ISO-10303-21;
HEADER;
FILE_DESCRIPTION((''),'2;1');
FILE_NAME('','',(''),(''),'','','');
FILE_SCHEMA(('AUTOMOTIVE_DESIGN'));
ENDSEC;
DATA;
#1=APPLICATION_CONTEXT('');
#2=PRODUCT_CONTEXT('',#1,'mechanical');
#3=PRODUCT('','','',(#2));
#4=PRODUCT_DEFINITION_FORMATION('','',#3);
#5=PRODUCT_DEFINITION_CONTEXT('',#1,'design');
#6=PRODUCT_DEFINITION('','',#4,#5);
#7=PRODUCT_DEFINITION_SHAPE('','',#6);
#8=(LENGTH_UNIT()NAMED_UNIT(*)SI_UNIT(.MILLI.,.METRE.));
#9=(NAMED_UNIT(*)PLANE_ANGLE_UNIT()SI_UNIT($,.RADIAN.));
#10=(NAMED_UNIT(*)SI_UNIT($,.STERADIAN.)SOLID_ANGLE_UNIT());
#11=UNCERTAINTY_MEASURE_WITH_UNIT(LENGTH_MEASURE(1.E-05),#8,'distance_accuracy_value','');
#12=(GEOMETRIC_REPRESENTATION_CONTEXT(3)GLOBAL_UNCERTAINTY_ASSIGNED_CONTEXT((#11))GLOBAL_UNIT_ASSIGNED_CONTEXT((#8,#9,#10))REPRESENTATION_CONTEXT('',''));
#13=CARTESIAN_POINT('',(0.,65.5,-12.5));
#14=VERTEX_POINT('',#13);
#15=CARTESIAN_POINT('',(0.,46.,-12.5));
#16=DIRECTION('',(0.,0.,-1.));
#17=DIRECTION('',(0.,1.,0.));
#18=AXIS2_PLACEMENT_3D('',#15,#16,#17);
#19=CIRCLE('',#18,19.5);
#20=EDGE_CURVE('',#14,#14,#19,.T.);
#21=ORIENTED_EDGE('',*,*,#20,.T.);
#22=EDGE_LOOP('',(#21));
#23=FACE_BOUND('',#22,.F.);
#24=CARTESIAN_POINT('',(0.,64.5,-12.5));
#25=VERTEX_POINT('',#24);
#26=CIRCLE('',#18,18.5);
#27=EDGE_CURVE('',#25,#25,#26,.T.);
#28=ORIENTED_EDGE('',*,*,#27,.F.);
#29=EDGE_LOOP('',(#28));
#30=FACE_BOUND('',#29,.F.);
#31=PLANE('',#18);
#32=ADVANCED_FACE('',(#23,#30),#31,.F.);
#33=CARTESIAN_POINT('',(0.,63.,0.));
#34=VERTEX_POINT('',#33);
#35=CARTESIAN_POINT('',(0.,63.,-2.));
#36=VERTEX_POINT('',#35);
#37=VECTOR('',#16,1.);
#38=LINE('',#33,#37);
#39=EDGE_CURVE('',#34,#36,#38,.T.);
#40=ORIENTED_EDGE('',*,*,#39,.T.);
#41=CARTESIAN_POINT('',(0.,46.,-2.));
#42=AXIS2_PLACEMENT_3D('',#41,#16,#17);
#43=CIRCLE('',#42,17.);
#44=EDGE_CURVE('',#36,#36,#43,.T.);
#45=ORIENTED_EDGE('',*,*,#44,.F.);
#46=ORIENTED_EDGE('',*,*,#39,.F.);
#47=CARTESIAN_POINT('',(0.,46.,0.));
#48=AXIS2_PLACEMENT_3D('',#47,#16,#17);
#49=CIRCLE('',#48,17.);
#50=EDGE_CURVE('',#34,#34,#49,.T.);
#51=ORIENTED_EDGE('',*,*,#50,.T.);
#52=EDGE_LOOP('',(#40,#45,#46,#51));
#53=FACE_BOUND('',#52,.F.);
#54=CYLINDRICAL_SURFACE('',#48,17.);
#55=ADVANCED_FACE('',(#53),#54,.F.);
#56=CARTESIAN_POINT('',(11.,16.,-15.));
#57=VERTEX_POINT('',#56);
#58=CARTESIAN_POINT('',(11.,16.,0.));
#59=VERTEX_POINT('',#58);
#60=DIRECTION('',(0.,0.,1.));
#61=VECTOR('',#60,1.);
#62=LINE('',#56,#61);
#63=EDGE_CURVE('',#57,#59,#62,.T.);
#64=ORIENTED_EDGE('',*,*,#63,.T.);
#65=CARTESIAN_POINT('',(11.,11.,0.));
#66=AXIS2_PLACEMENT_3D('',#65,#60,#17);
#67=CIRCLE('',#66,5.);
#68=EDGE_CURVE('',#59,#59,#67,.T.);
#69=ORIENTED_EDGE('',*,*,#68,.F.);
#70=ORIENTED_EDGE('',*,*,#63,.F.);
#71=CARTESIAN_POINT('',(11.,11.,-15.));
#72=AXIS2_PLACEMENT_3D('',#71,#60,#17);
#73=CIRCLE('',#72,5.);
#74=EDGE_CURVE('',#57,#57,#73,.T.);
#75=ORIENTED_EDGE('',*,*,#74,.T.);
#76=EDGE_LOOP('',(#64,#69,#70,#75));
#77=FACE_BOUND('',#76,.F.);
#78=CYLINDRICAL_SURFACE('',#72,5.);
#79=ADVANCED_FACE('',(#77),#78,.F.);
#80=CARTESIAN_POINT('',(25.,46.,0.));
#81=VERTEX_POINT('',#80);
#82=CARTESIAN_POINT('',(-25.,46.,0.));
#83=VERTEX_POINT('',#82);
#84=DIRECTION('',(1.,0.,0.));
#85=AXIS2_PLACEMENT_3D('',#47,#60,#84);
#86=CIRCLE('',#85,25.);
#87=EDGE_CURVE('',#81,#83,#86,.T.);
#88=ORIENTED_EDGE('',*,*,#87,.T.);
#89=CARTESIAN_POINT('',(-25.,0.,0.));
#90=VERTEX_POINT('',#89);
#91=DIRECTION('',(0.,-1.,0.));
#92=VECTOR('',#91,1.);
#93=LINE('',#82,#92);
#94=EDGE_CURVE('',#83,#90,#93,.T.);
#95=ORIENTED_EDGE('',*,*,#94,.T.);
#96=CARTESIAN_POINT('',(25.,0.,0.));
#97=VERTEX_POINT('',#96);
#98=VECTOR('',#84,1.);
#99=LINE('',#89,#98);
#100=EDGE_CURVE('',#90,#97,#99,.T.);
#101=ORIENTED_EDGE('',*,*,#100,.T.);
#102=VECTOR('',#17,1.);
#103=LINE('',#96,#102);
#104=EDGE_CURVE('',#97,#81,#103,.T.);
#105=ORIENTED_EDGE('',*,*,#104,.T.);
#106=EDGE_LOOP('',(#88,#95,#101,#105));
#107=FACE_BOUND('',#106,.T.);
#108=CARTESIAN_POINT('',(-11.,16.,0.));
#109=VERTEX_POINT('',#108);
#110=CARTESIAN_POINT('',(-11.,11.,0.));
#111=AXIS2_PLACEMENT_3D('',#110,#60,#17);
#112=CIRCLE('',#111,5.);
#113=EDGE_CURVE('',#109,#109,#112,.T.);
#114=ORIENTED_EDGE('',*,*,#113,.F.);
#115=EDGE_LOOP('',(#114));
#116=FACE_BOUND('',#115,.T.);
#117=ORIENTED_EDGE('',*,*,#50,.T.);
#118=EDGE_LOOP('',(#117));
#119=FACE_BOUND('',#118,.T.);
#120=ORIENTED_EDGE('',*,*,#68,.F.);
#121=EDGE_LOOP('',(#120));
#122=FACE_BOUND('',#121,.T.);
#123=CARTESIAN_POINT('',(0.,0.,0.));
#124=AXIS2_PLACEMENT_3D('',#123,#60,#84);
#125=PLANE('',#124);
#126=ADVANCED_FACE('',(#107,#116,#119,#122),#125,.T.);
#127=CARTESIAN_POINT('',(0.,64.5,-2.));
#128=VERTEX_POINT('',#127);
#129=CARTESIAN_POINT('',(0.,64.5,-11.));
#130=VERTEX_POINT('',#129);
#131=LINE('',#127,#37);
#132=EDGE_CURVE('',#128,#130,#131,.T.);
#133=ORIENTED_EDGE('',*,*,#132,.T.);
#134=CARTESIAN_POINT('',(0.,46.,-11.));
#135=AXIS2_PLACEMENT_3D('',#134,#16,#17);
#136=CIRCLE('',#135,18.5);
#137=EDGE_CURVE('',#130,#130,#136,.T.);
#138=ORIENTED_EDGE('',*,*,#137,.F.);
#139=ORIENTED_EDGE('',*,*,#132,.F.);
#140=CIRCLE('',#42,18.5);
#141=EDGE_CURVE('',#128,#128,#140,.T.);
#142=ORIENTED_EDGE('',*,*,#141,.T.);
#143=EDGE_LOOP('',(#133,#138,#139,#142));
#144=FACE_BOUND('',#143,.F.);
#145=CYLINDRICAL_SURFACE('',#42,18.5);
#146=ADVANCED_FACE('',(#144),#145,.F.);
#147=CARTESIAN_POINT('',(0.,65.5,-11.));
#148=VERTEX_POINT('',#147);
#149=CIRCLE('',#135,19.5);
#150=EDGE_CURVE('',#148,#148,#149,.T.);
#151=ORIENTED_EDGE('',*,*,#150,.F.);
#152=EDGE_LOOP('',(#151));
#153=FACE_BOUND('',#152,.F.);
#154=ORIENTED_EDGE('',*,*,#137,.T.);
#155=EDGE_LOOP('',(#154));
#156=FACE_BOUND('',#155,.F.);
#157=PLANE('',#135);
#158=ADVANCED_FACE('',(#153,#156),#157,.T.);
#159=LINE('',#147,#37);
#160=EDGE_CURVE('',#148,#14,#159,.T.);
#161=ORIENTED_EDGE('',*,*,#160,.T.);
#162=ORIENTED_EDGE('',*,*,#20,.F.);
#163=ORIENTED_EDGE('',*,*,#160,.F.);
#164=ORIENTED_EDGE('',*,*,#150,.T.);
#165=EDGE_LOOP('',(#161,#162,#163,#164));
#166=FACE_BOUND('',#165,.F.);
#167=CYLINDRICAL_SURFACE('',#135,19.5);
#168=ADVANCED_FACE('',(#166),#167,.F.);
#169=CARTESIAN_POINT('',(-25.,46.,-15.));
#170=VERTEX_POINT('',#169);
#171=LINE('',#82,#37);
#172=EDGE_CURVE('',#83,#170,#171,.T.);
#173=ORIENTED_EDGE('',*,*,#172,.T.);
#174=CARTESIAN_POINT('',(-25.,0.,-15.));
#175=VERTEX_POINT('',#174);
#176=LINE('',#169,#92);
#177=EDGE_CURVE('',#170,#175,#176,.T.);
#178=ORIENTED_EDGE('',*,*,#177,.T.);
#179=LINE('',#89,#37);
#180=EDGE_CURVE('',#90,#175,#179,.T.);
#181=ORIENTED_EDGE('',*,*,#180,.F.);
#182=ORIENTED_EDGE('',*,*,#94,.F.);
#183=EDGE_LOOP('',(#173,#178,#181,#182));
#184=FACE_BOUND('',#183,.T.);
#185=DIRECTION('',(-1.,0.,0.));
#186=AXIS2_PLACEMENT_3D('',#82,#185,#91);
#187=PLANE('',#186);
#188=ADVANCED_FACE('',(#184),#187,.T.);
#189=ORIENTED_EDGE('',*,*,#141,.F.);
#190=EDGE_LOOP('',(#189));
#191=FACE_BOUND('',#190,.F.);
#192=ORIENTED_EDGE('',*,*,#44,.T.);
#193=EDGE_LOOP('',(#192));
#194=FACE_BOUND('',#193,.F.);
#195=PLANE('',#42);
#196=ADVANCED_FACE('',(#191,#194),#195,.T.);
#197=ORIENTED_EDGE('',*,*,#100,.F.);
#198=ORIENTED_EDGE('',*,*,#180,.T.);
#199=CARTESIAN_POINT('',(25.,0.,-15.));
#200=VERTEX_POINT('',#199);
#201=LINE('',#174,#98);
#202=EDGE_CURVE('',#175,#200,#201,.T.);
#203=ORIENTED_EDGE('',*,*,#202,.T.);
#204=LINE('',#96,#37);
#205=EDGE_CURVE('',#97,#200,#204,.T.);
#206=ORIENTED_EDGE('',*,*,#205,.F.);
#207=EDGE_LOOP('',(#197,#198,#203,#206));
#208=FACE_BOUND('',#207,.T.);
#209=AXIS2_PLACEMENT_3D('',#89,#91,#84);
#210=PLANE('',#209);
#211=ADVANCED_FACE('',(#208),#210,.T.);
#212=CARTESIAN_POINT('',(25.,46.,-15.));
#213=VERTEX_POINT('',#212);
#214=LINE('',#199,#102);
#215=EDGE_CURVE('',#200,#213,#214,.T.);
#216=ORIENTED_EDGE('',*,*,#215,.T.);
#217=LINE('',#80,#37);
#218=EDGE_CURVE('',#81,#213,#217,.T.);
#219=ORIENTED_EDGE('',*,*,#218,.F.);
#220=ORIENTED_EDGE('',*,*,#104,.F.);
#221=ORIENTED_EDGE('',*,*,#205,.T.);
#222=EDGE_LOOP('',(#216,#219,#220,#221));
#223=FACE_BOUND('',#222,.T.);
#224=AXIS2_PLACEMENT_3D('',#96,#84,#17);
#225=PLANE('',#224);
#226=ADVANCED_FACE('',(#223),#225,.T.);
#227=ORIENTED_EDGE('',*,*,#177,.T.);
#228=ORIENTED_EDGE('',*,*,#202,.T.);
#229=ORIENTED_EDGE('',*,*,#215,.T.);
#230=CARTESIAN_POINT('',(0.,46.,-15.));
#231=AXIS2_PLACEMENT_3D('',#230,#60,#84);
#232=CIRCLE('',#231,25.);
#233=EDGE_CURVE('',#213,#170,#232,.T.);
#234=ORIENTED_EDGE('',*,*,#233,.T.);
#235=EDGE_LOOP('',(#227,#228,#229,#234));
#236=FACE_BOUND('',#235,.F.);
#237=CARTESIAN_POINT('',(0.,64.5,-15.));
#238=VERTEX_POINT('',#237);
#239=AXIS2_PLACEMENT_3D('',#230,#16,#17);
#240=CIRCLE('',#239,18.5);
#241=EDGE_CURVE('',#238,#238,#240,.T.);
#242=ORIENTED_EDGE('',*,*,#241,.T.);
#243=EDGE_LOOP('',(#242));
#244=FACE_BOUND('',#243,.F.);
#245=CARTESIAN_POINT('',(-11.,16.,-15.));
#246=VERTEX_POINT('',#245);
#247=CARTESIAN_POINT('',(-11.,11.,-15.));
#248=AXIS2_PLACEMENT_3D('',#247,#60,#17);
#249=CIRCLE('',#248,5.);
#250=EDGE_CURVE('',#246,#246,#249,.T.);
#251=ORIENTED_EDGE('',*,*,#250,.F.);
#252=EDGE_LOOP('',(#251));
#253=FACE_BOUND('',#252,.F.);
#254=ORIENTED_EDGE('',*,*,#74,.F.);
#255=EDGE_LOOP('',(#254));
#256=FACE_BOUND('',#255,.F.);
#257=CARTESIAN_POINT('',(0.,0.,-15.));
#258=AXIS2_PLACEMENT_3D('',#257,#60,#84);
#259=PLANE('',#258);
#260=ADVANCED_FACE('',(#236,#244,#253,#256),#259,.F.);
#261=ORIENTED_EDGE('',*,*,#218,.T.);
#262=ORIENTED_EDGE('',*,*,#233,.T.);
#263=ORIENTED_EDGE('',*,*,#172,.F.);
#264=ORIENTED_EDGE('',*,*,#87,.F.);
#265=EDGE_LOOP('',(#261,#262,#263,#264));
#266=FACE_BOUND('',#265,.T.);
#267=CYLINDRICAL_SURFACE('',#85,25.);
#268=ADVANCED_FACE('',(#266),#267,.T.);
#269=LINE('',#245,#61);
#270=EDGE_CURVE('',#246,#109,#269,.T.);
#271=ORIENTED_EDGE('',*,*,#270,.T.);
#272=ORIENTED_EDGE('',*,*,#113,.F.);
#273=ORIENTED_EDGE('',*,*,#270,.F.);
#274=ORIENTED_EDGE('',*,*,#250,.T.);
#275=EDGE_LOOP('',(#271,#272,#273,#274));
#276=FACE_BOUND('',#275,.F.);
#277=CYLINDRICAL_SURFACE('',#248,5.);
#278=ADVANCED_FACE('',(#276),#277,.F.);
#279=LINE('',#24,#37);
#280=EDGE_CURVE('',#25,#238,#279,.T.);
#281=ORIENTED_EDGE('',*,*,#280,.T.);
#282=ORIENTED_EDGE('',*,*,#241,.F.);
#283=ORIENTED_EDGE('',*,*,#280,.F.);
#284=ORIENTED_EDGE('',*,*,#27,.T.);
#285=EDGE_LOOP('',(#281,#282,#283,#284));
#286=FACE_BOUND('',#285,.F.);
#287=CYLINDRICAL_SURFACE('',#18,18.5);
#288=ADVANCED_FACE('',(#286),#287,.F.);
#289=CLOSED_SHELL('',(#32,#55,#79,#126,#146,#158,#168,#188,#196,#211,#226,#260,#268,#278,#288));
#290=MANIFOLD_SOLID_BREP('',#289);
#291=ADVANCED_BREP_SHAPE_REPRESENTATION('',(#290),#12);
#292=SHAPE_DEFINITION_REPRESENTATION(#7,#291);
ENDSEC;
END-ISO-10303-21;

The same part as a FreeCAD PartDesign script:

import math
import FreeCAD as App
import Part
import Sketcher
Q = App.Units.Quantity

doc = App.newDocument("Part")
params = doc.addObject("Spreadsheet::Sheet", "Params")
for row, (alias, value) in enumerate([
    ("sketch1_radius", "25 mm"),
    ("sketch1_height", "46 mm"),
    ("pad1_length", "15 mm"),
    ("sketch2_width", "1 mm"),
    ("sketch2_height", "13 mm"),
    ("sketch2_height2", "9 mm"),
    ("sketch2_width2", "18.5 mm"),
    ("sketch2_height3", "2.5 mm"),
    ("groove_angle", "360 deg"),
    ("sketch3_width", "17 mm"),
    ("sketch3_height", "15 mm"),
    ("groove2_angle", "360 deg"),
    ("sketch4_diameter", "10 mm"),
    ("hole_diameter", "10 mm"),
    ("hole_depth", "15 mm"),
    ("linearpattern_pitch", "22 mm"),
], start=1):
    params.set(f"A{row}", alias)
    params.set(f"B{row}", "=" + value)
    params.setAlias(f"B{row}", alias)

body = doc.addObject("PartDesign::Body", "Body")

# Sketch on XY plane
sketch1 = doc.addObject("Sketcher::SketchObject", "Sketch")
body.addObject(sketch1)
sketch1.AttachmentSupport = (doc.XY_Plane, [""])
sketch1.MapMode = "FlatFace"
sketch1.addGeometry([
    Part.ArcOfCircle(Part.Circle(App.Vector(0, 46, 0), App.Vector(0, 0, 1), 25), math.radians(0), math.radians(180)),
    Part.LineSegment(App.Vector(-25, 46, 0), App.Vector(-25, 0, 0)),
    Part.LineSegment(App.Vector(-25, 0, 0), App.Vector(25, 0, 0)),
    Part.LineSegment(App.Vector(25, 0, 0), App.Vector(25, 46, 0)),
], False)
sketch1.addConstraint([
    Sketcher.Constraint("Tangent", 0, 2, 1, 1),
    Sketcher.Constraint("Coincident", 1, 2, 2, 1),
    Sketcher.Constraint("Coincident", 2, 2, 3, 1),
    Sketcher.Constraint("Tangent", 3, 2, 0, 1),
    Sketcher.Constraint("Vertical", 1),
    Sketcher.Constraint("Horizontal", 2),
    Sketcher.Constraint("Vertical", 3),
    Sketcher.Constraint("Symmetric", 1, 2, 2, 2, -1, 1),
    Sketcher.Constraint("Radius", 0, Q("25 mm")),
    Sketcher.Constraint("DistanceY", 1, 2, 1, 1, Q("46 mm")),
])
sketch1.setExpression("Constraints[8]", "Params.sketch1_radius")
sketch1.setExpression("Constraints[9]", "Params.sketch1_height")
pad1 = doc.addObject("PartDesign::Pad", "Pad")
body.addObject(pad1)
pad1.Profile = sketch1
pad1.setExpression("Length", "Params.pad1_length")
pad1.Reversed = True

# Sketch on YZ plane
sketch2 = doc.addObject("Sketcher::SketchObject", "Sketch001")
body.addObject(sketch2)
sketch2.AttachmentSupport = (doc.YZ_Plane, [""])
sketch2.MapMode = "FlatFace"
sketch2.addGeometry([
    Part.LineSegment(App.Vector(46, -2, 0), App.Vector(46, -15, 0)),  # 0
    Part.LineSegment(App.Vector(46, -15, 0), App.Vector(64.5, -15, 0)),  # 1
    Part.LineSegment(App.Vector(64.5, -15, 0), App.Vector(64.5, -12.5, 0)),  # 2
    Part.LineSegment(App.Vector(64.5, -12.5, 0), App.Vector(65.5, -12.5, 0)),  # 3
    Part.LineSegment(App.Vector(65.5, -12.5, 0), App.Vector(65.5, -11, 0)),  # 4
    Part.LineSegment(App.Vector(65.5, -11, 0), App.Vector(64.5, -11, 0)),  # 5
    Part.LineSegment(App.Vector(64.5, -11, 0), App.Vector(64.5, -2, 0)),  # 6
    Part.LineSegment(App.Vector(64.5, -2, 0), App.Vector(46, -2, 0)),  # 7
], False)
sketch2.addGeometry(Part.LineSegment(App.Vector(46, -2, 0), App.Vector(46, -15, 0)), True)  # axis
sketch2.addConstraint([
    Sketcher.Constraint("Coincident", 0, 2, 1, 1),
    Sketcher.Constraint("Coincident", 1, 2, 2, 1),
    Sketcher.Constraint("Coincident", 2, 2, 3, 1),
    Sketcher.Constraint("Coincident", 3, 2, 4, 1),
    Sketcher.Constraint("Coincident", 4, 2, 5, 1),
    Sketcher.Constraint("Coincident", 5, 2, 6, 1),
    Sketcher.Constraint("Coincident", 6, 2, 7, 1),
    Sketcher.Constraint("Coincident", 7, 2, 0, 1),
    Sketcher.Constraint("Vertical", 0),
    Sketcher.Constraint("Horizontal", 1),
    Sketcher.Constraint("Vertical", 2),
    Sketcher.Constraint("Horizontal", 3),
    Sketcher.Constraint("Vertical", 4),
    Sketcher.Constraint("Horizontal", 5),
    Sketcher.Constraint("Vertical", 6),
    Sketcher.Constraint("Horizontal", 7),
    Sketcher.Constraint("Vertical", 8),
    Sketcher.Constraint("Coincident", 8, 1, 7, 2),
    Sketcher.Constraint("Horizontal", 1, 2, 8, 2),
    Sketcher.Constraint("Vertical", 2, 2, 5, 2),
    Sketcher.Constraint("DistanceX", 3, 1, 3, 2, Q("1 mm")),
    Sketcher.Constraint("DistanceY", 0, 2, 0, 1, Q("13 mm")),
    Sketcher.Constraint("DistanceY", 6, 1, 6, 2, Q("9 mm")),
    Sketcher.Constraint("DistanceX", 1, 1, 1, 2, Q("18.5 mm")),
    Sketcher.Constraint("DistanceY", 2, 1, 2, 2, Q("2.5 mm")),
    Sketcher.Constraint("DistanceX", -1, 1, 0, 2, Q("46 mm")),
    Sketcher.Constraint("DistanceY", 0, 2, -1, 1, Q("15 mm")),
])
sketch2.setExpression("Constraints[20]", "Params.sketch2_width")
sketch2.setExpression("Constraints[21]", "Params.sketch2_height")
sketch2.setExpression("Constraints[22]", "Params.sketch2_height2")
sketch2.setExpression("Constraints[23]", "Params.sketch2_width2")
sketch2.setExpression("Constraints[24]", "Params.sketch2_height3")
groove = doc.addObject("PartDesign::Groove", "Groove")
body.addObject(groove)
groove.Profile = sketch2
groove.ReferenceAxis = (sketch2, ["Axis0"])
groove.setExpression("Angle", "Params.groove_angle")

# Sketch on YZ plane
sketch3 = doc.addObject("Sketcher::SketchObject", "Sketch002")
body.addObject(sketch3)
sketch3.AttachmentSupport = (doc.YZ_Plane, [""])
sketch3.MapMode = "FlatFace"
sketch3.addGeometry([
    Part.LineSegment(App.Vector(46, 0, 0), App.Vector(46, -15, 0)),
    Part.LineSegment(App.Vector(46, -15, 0), App.Vector(63, -15, 0)),
    Part.LineSegment(App.Vector(63, -15, 0), App.Vector(63, 0, 0)),
    Part.LineSegment(App.Vector(63, 0, 0), App.Vector(46, 0, 0)),
], False)
sketch3.addGeometry(Part.LineSegment(App.Vector(46, 0, 0), App.Vector(46, -15, 0)), True)  # axis
sketch3.addConstraint([
    Sketcher.Constraint("Coincident", 0, 2, 1, 1),
    Sketcher.Constraint("Coincident", 1, 2, 2, 1),
    Sketcher.Constraint("Coincident", 2, 2, 3, 1),
    Sketcher.Constraint("Coincident", 3, 2, 0, 1),
    Sketcher.Constraint("Vertical", 0),
    Sketcher.Constraint("Horizontal", 1),
    Sketcher.Constraint("Vertical", 2),
    Sketcher.Constraint("Horizontal", 3),
    Sketcher.Constraint("Vertical", 4),
    Sketcher.Constraint("Coincident", 4, 1, 3, 2),
    Sketcher.Constraint("PointOnObject", 2, 2, -1),
    Sketcher.Constraint("Horizontal", 1, 2, 4, 2),
    Sketcher.Constraint("DistanceX", 1, 1, 1, 2, Q("17 mm")),
    Sketcher.Constraint("DistanceY", 0, 2, 0, 1, Q("15 mm")),
    Sketcher.Constraint("DistanceX", -1, 1, 0, 2, Q("46 mm")),
])
sketch3.setExpression("Constraints[12]", "Params.sketch3_width")
sketch3.setExpression("Constraints[13]", "Params.sketch3_height")
groove2 = doc.addObject("PartDesign::Groove", "Groove001")
body.addObject(groove2)
groove2.Profile = sketch3
groove2.ReferenceAxis = (sketch3, ["Axis0"])
groove2.setExpression("Angle", "Params.groove2_angle")

# Sketch on XY plane
sketch4 = doc.addObject("Sketcher::SketchObject", "Sketch003")
body.addObject(sketch4)
sketch4.AttachmentSupport = (doc.XY_Plane, [""])
sketch4.MapMode = "FlatFace"
sketch4.AttachmentOffset = App.Placement(App.Vector(0, 0, -15), App.Rotation())
sketch4.addGeometry(Part.Circle(App.Vector(-11, 11, 0), App.Vector(0, 0, 1), 5), False)
sketch4.addConstraint([
    Sketcher.Constraint("Diameter", 0, Q("10 mm")),
    Sketcher.Constraint("DistanceX", 0, 3, -1, 1, Q("11 mm")),
    Sketcher.Constraint("DistanceY", -1, 1, 0, 3, Q("11 mm")),
])
sketch4.setExpression("Constraints[0]", "Params.sketch4_diameter")
doc.recompute()
hole = doc.addObject("PartDesign::Hole", "Hole")
body.addObject(hole)
hole.Profile = sketch4
hole.ThreadType = "None"
hole.setExpression("Diameter", "Params.hole_diameter")
hole.DepthType = "Dimension"
hole.setExpression("Depth", "Params.hole_depth")
hole.DrillPoint = "Flat"
hole.Reversed = True
doc.recompute()

linearpattern = doc.addObject("PartDesign::LinearPattern", "LinearPattern")
body.addObject(linearpattern)
linearpattern.Originals = [hole]
linearpattern.Direction = (doc.X_Axis, [""])
linearpattern.Mode = "offset"
linearpattern.setExpression("Offset", "Params.linearpattern_pitch")
linearpattern.Occurrences = 2
body.Tip = linearpattern

doc.recompute()
